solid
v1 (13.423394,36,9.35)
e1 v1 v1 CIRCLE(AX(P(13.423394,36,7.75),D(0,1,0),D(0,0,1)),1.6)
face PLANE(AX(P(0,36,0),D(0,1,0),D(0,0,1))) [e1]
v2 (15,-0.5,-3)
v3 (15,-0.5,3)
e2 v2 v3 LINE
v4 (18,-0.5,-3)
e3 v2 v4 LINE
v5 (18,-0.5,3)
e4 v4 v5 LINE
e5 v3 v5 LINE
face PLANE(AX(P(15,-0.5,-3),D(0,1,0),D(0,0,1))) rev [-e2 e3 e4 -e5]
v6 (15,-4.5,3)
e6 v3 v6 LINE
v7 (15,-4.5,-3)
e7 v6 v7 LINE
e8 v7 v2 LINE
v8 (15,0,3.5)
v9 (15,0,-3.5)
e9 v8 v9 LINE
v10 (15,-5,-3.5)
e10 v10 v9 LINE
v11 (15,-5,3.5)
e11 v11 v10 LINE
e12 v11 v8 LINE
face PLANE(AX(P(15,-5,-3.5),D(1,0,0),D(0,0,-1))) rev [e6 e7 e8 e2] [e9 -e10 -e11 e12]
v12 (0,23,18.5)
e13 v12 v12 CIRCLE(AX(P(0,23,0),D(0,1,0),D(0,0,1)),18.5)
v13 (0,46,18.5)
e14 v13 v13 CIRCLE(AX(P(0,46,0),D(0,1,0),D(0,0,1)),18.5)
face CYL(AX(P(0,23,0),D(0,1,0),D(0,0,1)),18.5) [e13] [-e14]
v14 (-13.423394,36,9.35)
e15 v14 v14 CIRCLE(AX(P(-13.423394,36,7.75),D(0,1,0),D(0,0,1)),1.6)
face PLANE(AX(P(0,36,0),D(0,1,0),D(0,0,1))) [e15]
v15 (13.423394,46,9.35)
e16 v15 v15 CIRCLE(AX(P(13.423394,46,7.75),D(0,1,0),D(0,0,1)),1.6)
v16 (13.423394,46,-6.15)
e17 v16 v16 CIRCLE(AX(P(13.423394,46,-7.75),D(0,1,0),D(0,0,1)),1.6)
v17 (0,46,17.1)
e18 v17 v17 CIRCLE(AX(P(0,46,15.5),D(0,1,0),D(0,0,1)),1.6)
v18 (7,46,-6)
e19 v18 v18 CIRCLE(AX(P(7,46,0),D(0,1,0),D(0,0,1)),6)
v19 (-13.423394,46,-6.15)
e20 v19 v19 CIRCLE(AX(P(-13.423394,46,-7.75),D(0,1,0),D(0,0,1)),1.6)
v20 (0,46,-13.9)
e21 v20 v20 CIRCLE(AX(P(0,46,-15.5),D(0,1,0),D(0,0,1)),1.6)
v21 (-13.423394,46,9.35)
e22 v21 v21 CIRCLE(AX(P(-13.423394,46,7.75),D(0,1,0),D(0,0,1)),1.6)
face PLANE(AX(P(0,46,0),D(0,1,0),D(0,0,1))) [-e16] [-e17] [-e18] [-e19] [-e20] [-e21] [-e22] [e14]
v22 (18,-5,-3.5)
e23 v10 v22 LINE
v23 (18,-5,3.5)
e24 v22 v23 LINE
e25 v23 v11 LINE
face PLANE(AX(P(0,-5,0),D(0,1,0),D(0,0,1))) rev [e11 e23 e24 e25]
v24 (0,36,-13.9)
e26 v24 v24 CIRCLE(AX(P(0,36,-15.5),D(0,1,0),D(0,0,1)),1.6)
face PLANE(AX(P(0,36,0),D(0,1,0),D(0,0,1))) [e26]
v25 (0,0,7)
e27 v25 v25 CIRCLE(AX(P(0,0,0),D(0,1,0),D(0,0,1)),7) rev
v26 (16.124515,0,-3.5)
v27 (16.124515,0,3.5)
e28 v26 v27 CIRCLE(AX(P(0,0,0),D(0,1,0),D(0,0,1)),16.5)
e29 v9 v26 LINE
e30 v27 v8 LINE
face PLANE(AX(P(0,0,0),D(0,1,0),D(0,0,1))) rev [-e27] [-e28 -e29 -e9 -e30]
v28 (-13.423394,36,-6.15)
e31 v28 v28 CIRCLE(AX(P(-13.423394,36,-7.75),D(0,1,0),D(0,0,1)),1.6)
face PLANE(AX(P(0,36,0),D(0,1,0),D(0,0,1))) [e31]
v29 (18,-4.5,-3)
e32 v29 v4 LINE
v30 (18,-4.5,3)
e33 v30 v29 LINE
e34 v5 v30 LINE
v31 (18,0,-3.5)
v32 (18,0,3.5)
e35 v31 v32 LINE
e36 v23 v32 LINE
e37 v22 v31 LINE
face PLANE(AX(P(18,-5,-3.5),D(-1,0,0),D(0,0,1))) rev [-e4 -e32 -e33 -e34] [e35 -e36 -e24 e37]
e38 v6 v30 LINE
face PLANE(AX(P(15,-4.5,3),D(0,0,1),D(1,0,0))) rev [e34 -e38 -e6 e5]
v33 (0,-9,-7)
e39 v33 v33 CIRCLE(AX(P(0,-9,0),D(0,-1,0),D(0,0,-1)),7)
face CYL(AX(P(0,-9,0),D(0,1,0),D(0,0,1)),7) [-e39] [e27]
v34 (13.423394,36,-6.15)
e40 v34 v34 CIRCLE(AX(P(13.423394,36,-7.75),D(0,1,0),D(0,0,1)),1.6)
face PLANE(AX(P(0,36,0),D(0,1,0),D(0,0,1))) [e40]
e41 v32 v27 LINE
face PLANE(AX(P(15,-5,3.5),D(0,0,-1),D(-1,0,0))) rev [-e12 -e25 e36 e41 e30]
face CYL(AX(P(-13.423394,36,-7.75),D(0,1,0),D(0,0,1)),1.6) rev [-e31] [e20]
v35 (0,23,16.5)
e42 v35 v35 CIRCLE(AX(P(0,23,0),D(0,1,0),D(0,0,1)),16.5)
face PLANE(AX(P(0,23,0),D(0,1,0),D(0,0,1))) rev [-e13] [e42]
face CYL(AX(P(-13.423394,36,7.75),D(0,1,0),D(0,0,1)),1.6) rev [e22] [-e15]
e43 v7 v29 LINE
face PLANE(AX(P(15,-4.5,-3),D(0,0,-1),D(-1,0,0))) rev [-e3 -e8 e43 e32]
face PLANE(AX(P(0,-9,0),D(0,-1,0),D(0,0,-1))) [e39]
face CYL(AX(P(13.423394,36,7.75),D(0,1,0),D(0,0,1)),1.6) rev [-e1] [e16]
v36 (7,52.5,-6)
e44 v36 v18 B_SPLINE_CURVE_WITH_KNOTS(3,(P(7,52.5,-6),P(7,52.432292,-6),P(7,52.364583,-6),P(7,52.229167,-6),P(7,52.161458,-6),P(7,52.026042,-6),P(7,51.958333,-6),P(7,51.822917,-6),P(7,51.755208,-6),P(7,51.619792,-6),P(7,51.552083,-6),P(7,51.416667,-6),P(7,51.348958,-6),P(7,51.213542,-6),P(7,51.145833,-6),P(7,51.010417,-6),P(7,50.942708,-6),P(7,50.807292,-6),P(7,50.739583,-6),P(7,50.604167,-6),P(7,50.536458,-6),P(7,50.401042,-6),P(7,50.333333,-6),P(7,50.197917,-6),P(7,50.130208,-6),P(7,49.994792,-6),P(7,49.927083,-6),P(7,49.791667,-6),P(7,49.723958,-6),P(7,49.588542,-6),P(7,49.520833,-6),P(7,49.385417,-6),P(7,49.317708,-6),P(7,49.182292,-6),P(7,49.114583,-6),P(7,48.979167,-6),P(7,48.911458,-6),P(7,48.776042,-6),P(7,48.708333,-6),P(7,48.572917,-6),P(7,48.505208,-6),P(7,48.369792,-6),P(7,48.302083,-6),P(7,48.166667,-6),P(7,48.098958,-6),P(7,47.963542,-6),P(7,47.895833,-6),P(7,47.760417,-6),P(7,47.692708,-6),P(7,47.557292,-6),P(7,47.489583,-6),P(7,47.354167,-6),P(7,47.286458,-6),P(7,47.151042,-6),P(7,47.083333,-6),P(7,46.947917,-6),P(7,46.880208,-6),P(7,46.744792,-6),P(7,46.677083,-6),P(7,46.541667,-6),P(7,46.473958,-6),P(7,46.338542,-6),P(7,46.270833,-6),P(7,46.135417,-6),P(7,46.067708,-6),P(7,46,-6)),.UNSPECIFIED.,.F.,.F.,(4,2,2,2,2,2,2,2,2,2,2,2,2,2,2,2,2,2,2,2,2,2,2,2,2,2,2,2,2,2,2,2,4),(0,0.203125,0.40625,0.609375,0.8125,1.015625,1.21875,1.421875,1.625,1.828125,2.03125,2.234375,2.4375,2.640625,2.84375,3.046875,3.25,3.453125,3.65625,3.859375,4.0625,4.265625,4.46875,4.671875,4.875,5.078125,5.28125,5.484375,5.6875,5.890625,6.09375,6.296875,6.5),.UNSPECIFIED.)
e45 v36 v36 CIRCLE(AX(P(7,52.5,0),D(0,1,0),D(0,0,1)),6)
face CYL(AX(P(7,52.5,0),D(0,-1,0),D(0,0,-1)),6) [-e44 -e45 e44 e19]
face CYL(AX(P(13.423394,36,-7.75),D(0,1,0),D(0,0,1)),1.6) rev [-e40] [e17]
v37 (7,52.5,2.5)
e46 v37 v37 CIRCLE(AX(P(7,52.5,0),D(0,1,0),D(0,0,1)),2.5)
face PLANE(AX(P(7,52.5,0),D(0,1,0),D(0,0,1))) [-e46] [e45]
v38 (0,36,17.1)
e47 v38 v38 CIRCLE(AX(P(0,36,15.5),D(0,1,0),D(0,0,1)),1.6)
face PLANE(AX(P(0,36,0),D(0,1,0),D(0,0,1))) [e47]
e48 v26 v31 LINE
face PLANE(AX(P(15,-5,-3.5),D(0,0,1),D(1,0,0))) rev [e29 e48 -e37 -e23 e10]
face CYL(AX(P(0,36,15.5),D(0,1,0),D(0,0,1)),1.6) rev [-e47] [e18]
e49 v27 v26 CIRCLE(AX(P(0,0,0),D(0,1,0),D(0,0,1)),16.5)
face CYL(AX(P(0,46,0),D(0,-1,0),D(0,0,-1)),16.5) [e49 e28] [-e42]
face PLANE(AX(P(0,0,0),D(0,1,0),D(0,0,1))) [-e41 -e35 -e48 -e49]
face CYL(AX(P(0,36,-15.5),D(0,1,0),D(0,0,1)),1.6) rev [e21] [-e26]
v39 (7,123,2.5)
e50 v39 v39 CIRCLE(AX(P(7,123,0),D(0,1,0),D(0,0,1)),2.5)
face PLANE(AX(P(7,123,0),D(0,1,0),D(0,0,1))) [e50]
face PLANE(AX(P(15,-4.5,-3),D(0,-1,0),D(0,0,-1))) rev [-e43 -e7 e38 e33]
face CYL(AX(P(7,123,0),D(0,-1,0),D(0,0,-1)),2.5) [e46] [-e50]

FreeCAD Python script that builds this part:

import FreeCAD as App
import Part
import Sketcher


def add_polygon(sketch, points):
    """Adds a closed chain of lines whose ends are joined by coincident constraints."""
    first, n = sketch.GeometryCount, len(points)
    for a, b in zip(points, points[1:] + points[:1]):
        sketch.addGeometry(Part.LineSegment(App.Vector(*a, 0), App.Vector(*b, 0)), False)
    for i in range(n):
        sketch.addConstraint(Sketcher.Constraint("Coincident", first + i, 2, first + (i + 1) % n, 1))

doc = App.newDocument("Part")
body = doc.addObject("PartDesign::Body", "Body")

# Sketch on XZ plane
sketch1 = body.newObject("Sketcher::SketchObject", "Sketch")
sketch1.AttachmentSupport = (doc.getObject("XZ_Plane"), [""])
sketch1.MapMode = "FlatFace"
sketch1.addGeometry(Part.Circle(App.Vector(0, 0, 0), App.Vector(0, 0, 1), 16), False)
sketch1.addConstraint([
    Sketcher.Constraint("Coincident", 0, 3, -1, 1),
    Sketcher.Constraint("Diameter", 0, 33.0),
])
pad1 = body.newObject("PartDesign::Pad", "Pad")
pad1.Profile = sketch1
pad1.Length = 46
pad1.Reversed = True

# Sketch on XZ plane
sketch2 = body.newObject("Sketcher::SketchObject", "Sketch001")
sketch2.AttachmentSupport = (doc.getObject("XZ_Plane"), [""])
sketch2.MapMode = "FlatFace"
sketch2.addGeometry(Part.Circle(App.Vector(0, 0, 0), App.Vector(0, 0, 1), 7), False)
sketch2.addConstraint([
    Sketcher.Constraint("Coincident", 0, 3, -1, 1),
    Sketcher.Constraint("Diameter", 0, 14.0),
])
pad2 = body.newObject("PartDesign::Pad", "Pad001")
pad2.Profile = sketch2
pad2.Length = 9

# Sketch on XZ plane
sketch3 = body.newObject("Sketcher::SketchObject", "Sketch002")
sketch3.AttachmentSupport = (doc.getObject("XZ_Plane"), [""])
sketch3.MapMode = "FlatFace"
add_polygon(sketch3, [(15, 3.5), (15, -3.5), (18, -3.5), (18, 3.5)])  # lines 0-3
sketch3.addConstraint([
    Sketcher.Constraint("Vertical", 0),
    Sketcher.Constraint("Horizontal", 1),
    Sketcher.Constraint("Vertical", 2),
    Sketcher.Constraint("Horizontal", 3),
    Sketcher.Constraint("DistanceX", 1, 1, 1, 2, 3.0),
    Sketcher.Constraint("DistanceY", 0, 2, 0, 1, 7.0),
    Sketcher.Constraint("DistanceX", -1, 1, 0, 2, 15.0),
    Sketcher.Constraint("DistanceY", 0, 2, -1, 1, 3.5),
])
pad3 = body.newObject("PartDesign::Pad", "Pad002")
pad3.Profile = sketch3
pad3.Length = 5

# Sketch on YZ plane
sketch4 = body.newObject("Sketcher::SketchObject", "Sketch003")
sketch4.AttachmentSupport = (doc.getObject("YZ_Plane"), [""])
sketch4.MapMode = "FlatFace"
sketch4.AttachmentOffset = App.Placement(App.Vector(0, 0, 18), App.Rotation())
add_polygon(sketch4, [(-0.5, 3), (-4.5, 3), (-4.5, -3), (-0.5, -3)])  # lines 0-3
sketch4.addConstraint([
    Sketcher.Constraint("Horizontal", 0),
    Sketcher.Constraint("Vertical", 1),
    Sketcher.Constraint("Horizontal", 2),
    Sketcher.Constraint("Vertical", 3),
    Sketcher.Constraint("DistanceX", 0, 2, 0, 1, 4.0),
    Sketcher.Constraint("DistanceY", 1, 2, 1, 1, 6.0),
    Sketcher.Constraint("DistanceY", -1, 1, 0, 2, 3.0),
    Sketcher.Constraint("DistanceX", 0, 2, -1, 1, 4.5),
])
pocket1 = body.newObject("PartDesign::Pocket", "Pocket")
pocket1.Profile = sketch4
pocket1.Length = 3

# Sketch on XZ plane
sketch5 = body.newObject("Sketcher::SketchObject", "Sketch004")
sketch5.AttachmentSupport = (doc.getObject("XZ_Plane"), [""])
sketch5.MapMode = "FlatFace"
sketch5.AttachmentOffset = App.Placement(App.Vector(0, 0, -46), App.Rotation())
sketch5.addGeometry(Part.Circle(App.Vector(7, 0, 0), App.Vector(0, 0, 1), 6), False)
sketch5.addConstraint([
    Sketcher.Constraint("PointOnObject", 0, 3, -1),
    Sketcher.Constraint("Diameter", 0, 12.0),
    Sketcher.Constraint("DistanceX", -1, 1, 0, 3, 7.0),
])
pad4 = body.newObject("PartDesign::Pad", "Pad003")
pad4.Profile = sketch5
pad4.Length = 6.5
pad4.Reversed = True

# Sketch on XZ plane
sketch6 = body.newObject("Sketcher::SketchObject", "Sketch005")
sketch6.AttachmentSupport = (doc.getObject("XZ_Plane"), [""])
sketch6.MapMode = "FlatFace"
sketch6.AttachmentOffset = App.Placement(App.Vector(0, 0, -52.5), App.Rotation())
sketch6.addGeometry(Part.Circle(App.Vector(7, 0, 0), App.Vector(0, 0, 1), 2.5), False)
sketch6.addConstraint([
    Sketcher.Constraint("PointOnObject", 0, 3, -1),
    Sketcher.Constraint("Diameter", 0, 5.0),
    Sketcher.Constraint("DistanceX", -1, 1, 0, 3, 7.0),
])
pad5 = body.newObject("PartDesign::Pad", "Pad004")
pad5.Profile = sketch6
pad5.Length = 70.5
pad5.Reversed = True

# Sketch on XZ plane
sketch7 = body.newObject("Sketcher::SketchObject", "Sketch006")
sketch7.AttachmentSupport = (doc.getObject("XZ_Plane"), [""])
sketch7.MapMode = "FlatFace"
sketch7.AttachmentOffset = App.Placement(App.Vector(0, 0, -23), App.Rotation())
sketch7.addGeometry([
    Part.Circle(App.Vector(0, 0, 0), App.Vector(0, 0, 1), 18),
    Part.Circle(App.Vector(0, 0, 0), App.Vector(0, 0, 1), 16),
], False)
sketch7.addConstraint([
    Sketcher.Constraint("Coincident", 0, 3, -1, 1),
    Sketcher.Constraint("Coincident", 1, 3, -1, 1),
    Sketcher.Constraint("Diameter", 0, 37.0),
    Sketcher.Constraint("Diameter", 1, 33.0),
])
pad6 = body.newObject("PartDesign::Pad", "Pad005")
pad6.Profile = sketch7
pad6.Length = 23
pad6.Reversed = True

# Sketch on XZ plane
sketch8 = body.newObject("Sketcher::SketchObject", "Sketch007")
sketch8.AttachmentSupport = (doc.getObject("XZ_Plane"), [""])
sketch8.MapMode = "FlatFace"
sketch8.AttachmentOffset = App.Placement(App.Vector(0, 0, -46), App.Rotation())
sketch8.addGeometry([
    Part.Circle(App.Vector(-13.4, -7.8, 0), App.Vector(0, 0, 1), 1.6),  # 0
    Part.Circle(App.Vector(0, -15.5, 0), App.Vector(0, 0, 1), 1.6),  # 1
    Part.Circle(App.Vector(13.4, -7.8, 0), App.Vector(0, 0, 1), 1.6),  # 2
    Part.Circle(App.Vector(13.4, 7.8, 0), App.Vector(0, 0, 1), 1.6),  # 3
    Part.Circle(App.Vector(0, 15.5, 0), App.Vector(0, 0, 1), 1.6),  # 4
    Part.Circle(App.Vector(-13.4, 7.8, 0), App.Vector(0, 0, 1), 1.6),  # 5
], False)
sketch8.addConstraint([
    Sketcher.Constraint("Equal", 0, 1),
    Sketcher.Constraint("Equal", 1, 2),
    Sketcher.Constraint("Equal", 2, 3),
    Sketcher.Constraint("Equal", 3, 4),
    Sketcher.Constraint("Equal", 4, 5),
    Sketcher.Constraint("Symmetric", 0, 3, 3, 3, -1, 1),
    Sketcher.Constraint("Symmetric", 1, 3, 4, 3, -1, 1),
    Sketcher.Constraint("Symmetric", 2, 3, 5, 3, -1, 1),
    Sketcher.Constraint("Symmetric", 0, 3, 2, 3, -2),
    Sketcher.Constraint("PointOnObject", 1, 3, -2),
    Sketcher.Constraint("Diameter", 0, 3.2),
    Sketcher.Constraint("DistanceY", 1, 3, 4, 3, 31.0),
    Sketcher.Constraint("DistanceY", 2, 3, 3, 3, 15.5),
    Sketcher.Constraint("DistanceX", 0, 3, -1, 1, 13.423394),
])
pocket2 = body.newObject("PartDesign::Pocket", "Pocket001")
pocket2.Profile = sketch8
pocket2.Length = 10
pocket2.Reversed = True

doc.recompute()
